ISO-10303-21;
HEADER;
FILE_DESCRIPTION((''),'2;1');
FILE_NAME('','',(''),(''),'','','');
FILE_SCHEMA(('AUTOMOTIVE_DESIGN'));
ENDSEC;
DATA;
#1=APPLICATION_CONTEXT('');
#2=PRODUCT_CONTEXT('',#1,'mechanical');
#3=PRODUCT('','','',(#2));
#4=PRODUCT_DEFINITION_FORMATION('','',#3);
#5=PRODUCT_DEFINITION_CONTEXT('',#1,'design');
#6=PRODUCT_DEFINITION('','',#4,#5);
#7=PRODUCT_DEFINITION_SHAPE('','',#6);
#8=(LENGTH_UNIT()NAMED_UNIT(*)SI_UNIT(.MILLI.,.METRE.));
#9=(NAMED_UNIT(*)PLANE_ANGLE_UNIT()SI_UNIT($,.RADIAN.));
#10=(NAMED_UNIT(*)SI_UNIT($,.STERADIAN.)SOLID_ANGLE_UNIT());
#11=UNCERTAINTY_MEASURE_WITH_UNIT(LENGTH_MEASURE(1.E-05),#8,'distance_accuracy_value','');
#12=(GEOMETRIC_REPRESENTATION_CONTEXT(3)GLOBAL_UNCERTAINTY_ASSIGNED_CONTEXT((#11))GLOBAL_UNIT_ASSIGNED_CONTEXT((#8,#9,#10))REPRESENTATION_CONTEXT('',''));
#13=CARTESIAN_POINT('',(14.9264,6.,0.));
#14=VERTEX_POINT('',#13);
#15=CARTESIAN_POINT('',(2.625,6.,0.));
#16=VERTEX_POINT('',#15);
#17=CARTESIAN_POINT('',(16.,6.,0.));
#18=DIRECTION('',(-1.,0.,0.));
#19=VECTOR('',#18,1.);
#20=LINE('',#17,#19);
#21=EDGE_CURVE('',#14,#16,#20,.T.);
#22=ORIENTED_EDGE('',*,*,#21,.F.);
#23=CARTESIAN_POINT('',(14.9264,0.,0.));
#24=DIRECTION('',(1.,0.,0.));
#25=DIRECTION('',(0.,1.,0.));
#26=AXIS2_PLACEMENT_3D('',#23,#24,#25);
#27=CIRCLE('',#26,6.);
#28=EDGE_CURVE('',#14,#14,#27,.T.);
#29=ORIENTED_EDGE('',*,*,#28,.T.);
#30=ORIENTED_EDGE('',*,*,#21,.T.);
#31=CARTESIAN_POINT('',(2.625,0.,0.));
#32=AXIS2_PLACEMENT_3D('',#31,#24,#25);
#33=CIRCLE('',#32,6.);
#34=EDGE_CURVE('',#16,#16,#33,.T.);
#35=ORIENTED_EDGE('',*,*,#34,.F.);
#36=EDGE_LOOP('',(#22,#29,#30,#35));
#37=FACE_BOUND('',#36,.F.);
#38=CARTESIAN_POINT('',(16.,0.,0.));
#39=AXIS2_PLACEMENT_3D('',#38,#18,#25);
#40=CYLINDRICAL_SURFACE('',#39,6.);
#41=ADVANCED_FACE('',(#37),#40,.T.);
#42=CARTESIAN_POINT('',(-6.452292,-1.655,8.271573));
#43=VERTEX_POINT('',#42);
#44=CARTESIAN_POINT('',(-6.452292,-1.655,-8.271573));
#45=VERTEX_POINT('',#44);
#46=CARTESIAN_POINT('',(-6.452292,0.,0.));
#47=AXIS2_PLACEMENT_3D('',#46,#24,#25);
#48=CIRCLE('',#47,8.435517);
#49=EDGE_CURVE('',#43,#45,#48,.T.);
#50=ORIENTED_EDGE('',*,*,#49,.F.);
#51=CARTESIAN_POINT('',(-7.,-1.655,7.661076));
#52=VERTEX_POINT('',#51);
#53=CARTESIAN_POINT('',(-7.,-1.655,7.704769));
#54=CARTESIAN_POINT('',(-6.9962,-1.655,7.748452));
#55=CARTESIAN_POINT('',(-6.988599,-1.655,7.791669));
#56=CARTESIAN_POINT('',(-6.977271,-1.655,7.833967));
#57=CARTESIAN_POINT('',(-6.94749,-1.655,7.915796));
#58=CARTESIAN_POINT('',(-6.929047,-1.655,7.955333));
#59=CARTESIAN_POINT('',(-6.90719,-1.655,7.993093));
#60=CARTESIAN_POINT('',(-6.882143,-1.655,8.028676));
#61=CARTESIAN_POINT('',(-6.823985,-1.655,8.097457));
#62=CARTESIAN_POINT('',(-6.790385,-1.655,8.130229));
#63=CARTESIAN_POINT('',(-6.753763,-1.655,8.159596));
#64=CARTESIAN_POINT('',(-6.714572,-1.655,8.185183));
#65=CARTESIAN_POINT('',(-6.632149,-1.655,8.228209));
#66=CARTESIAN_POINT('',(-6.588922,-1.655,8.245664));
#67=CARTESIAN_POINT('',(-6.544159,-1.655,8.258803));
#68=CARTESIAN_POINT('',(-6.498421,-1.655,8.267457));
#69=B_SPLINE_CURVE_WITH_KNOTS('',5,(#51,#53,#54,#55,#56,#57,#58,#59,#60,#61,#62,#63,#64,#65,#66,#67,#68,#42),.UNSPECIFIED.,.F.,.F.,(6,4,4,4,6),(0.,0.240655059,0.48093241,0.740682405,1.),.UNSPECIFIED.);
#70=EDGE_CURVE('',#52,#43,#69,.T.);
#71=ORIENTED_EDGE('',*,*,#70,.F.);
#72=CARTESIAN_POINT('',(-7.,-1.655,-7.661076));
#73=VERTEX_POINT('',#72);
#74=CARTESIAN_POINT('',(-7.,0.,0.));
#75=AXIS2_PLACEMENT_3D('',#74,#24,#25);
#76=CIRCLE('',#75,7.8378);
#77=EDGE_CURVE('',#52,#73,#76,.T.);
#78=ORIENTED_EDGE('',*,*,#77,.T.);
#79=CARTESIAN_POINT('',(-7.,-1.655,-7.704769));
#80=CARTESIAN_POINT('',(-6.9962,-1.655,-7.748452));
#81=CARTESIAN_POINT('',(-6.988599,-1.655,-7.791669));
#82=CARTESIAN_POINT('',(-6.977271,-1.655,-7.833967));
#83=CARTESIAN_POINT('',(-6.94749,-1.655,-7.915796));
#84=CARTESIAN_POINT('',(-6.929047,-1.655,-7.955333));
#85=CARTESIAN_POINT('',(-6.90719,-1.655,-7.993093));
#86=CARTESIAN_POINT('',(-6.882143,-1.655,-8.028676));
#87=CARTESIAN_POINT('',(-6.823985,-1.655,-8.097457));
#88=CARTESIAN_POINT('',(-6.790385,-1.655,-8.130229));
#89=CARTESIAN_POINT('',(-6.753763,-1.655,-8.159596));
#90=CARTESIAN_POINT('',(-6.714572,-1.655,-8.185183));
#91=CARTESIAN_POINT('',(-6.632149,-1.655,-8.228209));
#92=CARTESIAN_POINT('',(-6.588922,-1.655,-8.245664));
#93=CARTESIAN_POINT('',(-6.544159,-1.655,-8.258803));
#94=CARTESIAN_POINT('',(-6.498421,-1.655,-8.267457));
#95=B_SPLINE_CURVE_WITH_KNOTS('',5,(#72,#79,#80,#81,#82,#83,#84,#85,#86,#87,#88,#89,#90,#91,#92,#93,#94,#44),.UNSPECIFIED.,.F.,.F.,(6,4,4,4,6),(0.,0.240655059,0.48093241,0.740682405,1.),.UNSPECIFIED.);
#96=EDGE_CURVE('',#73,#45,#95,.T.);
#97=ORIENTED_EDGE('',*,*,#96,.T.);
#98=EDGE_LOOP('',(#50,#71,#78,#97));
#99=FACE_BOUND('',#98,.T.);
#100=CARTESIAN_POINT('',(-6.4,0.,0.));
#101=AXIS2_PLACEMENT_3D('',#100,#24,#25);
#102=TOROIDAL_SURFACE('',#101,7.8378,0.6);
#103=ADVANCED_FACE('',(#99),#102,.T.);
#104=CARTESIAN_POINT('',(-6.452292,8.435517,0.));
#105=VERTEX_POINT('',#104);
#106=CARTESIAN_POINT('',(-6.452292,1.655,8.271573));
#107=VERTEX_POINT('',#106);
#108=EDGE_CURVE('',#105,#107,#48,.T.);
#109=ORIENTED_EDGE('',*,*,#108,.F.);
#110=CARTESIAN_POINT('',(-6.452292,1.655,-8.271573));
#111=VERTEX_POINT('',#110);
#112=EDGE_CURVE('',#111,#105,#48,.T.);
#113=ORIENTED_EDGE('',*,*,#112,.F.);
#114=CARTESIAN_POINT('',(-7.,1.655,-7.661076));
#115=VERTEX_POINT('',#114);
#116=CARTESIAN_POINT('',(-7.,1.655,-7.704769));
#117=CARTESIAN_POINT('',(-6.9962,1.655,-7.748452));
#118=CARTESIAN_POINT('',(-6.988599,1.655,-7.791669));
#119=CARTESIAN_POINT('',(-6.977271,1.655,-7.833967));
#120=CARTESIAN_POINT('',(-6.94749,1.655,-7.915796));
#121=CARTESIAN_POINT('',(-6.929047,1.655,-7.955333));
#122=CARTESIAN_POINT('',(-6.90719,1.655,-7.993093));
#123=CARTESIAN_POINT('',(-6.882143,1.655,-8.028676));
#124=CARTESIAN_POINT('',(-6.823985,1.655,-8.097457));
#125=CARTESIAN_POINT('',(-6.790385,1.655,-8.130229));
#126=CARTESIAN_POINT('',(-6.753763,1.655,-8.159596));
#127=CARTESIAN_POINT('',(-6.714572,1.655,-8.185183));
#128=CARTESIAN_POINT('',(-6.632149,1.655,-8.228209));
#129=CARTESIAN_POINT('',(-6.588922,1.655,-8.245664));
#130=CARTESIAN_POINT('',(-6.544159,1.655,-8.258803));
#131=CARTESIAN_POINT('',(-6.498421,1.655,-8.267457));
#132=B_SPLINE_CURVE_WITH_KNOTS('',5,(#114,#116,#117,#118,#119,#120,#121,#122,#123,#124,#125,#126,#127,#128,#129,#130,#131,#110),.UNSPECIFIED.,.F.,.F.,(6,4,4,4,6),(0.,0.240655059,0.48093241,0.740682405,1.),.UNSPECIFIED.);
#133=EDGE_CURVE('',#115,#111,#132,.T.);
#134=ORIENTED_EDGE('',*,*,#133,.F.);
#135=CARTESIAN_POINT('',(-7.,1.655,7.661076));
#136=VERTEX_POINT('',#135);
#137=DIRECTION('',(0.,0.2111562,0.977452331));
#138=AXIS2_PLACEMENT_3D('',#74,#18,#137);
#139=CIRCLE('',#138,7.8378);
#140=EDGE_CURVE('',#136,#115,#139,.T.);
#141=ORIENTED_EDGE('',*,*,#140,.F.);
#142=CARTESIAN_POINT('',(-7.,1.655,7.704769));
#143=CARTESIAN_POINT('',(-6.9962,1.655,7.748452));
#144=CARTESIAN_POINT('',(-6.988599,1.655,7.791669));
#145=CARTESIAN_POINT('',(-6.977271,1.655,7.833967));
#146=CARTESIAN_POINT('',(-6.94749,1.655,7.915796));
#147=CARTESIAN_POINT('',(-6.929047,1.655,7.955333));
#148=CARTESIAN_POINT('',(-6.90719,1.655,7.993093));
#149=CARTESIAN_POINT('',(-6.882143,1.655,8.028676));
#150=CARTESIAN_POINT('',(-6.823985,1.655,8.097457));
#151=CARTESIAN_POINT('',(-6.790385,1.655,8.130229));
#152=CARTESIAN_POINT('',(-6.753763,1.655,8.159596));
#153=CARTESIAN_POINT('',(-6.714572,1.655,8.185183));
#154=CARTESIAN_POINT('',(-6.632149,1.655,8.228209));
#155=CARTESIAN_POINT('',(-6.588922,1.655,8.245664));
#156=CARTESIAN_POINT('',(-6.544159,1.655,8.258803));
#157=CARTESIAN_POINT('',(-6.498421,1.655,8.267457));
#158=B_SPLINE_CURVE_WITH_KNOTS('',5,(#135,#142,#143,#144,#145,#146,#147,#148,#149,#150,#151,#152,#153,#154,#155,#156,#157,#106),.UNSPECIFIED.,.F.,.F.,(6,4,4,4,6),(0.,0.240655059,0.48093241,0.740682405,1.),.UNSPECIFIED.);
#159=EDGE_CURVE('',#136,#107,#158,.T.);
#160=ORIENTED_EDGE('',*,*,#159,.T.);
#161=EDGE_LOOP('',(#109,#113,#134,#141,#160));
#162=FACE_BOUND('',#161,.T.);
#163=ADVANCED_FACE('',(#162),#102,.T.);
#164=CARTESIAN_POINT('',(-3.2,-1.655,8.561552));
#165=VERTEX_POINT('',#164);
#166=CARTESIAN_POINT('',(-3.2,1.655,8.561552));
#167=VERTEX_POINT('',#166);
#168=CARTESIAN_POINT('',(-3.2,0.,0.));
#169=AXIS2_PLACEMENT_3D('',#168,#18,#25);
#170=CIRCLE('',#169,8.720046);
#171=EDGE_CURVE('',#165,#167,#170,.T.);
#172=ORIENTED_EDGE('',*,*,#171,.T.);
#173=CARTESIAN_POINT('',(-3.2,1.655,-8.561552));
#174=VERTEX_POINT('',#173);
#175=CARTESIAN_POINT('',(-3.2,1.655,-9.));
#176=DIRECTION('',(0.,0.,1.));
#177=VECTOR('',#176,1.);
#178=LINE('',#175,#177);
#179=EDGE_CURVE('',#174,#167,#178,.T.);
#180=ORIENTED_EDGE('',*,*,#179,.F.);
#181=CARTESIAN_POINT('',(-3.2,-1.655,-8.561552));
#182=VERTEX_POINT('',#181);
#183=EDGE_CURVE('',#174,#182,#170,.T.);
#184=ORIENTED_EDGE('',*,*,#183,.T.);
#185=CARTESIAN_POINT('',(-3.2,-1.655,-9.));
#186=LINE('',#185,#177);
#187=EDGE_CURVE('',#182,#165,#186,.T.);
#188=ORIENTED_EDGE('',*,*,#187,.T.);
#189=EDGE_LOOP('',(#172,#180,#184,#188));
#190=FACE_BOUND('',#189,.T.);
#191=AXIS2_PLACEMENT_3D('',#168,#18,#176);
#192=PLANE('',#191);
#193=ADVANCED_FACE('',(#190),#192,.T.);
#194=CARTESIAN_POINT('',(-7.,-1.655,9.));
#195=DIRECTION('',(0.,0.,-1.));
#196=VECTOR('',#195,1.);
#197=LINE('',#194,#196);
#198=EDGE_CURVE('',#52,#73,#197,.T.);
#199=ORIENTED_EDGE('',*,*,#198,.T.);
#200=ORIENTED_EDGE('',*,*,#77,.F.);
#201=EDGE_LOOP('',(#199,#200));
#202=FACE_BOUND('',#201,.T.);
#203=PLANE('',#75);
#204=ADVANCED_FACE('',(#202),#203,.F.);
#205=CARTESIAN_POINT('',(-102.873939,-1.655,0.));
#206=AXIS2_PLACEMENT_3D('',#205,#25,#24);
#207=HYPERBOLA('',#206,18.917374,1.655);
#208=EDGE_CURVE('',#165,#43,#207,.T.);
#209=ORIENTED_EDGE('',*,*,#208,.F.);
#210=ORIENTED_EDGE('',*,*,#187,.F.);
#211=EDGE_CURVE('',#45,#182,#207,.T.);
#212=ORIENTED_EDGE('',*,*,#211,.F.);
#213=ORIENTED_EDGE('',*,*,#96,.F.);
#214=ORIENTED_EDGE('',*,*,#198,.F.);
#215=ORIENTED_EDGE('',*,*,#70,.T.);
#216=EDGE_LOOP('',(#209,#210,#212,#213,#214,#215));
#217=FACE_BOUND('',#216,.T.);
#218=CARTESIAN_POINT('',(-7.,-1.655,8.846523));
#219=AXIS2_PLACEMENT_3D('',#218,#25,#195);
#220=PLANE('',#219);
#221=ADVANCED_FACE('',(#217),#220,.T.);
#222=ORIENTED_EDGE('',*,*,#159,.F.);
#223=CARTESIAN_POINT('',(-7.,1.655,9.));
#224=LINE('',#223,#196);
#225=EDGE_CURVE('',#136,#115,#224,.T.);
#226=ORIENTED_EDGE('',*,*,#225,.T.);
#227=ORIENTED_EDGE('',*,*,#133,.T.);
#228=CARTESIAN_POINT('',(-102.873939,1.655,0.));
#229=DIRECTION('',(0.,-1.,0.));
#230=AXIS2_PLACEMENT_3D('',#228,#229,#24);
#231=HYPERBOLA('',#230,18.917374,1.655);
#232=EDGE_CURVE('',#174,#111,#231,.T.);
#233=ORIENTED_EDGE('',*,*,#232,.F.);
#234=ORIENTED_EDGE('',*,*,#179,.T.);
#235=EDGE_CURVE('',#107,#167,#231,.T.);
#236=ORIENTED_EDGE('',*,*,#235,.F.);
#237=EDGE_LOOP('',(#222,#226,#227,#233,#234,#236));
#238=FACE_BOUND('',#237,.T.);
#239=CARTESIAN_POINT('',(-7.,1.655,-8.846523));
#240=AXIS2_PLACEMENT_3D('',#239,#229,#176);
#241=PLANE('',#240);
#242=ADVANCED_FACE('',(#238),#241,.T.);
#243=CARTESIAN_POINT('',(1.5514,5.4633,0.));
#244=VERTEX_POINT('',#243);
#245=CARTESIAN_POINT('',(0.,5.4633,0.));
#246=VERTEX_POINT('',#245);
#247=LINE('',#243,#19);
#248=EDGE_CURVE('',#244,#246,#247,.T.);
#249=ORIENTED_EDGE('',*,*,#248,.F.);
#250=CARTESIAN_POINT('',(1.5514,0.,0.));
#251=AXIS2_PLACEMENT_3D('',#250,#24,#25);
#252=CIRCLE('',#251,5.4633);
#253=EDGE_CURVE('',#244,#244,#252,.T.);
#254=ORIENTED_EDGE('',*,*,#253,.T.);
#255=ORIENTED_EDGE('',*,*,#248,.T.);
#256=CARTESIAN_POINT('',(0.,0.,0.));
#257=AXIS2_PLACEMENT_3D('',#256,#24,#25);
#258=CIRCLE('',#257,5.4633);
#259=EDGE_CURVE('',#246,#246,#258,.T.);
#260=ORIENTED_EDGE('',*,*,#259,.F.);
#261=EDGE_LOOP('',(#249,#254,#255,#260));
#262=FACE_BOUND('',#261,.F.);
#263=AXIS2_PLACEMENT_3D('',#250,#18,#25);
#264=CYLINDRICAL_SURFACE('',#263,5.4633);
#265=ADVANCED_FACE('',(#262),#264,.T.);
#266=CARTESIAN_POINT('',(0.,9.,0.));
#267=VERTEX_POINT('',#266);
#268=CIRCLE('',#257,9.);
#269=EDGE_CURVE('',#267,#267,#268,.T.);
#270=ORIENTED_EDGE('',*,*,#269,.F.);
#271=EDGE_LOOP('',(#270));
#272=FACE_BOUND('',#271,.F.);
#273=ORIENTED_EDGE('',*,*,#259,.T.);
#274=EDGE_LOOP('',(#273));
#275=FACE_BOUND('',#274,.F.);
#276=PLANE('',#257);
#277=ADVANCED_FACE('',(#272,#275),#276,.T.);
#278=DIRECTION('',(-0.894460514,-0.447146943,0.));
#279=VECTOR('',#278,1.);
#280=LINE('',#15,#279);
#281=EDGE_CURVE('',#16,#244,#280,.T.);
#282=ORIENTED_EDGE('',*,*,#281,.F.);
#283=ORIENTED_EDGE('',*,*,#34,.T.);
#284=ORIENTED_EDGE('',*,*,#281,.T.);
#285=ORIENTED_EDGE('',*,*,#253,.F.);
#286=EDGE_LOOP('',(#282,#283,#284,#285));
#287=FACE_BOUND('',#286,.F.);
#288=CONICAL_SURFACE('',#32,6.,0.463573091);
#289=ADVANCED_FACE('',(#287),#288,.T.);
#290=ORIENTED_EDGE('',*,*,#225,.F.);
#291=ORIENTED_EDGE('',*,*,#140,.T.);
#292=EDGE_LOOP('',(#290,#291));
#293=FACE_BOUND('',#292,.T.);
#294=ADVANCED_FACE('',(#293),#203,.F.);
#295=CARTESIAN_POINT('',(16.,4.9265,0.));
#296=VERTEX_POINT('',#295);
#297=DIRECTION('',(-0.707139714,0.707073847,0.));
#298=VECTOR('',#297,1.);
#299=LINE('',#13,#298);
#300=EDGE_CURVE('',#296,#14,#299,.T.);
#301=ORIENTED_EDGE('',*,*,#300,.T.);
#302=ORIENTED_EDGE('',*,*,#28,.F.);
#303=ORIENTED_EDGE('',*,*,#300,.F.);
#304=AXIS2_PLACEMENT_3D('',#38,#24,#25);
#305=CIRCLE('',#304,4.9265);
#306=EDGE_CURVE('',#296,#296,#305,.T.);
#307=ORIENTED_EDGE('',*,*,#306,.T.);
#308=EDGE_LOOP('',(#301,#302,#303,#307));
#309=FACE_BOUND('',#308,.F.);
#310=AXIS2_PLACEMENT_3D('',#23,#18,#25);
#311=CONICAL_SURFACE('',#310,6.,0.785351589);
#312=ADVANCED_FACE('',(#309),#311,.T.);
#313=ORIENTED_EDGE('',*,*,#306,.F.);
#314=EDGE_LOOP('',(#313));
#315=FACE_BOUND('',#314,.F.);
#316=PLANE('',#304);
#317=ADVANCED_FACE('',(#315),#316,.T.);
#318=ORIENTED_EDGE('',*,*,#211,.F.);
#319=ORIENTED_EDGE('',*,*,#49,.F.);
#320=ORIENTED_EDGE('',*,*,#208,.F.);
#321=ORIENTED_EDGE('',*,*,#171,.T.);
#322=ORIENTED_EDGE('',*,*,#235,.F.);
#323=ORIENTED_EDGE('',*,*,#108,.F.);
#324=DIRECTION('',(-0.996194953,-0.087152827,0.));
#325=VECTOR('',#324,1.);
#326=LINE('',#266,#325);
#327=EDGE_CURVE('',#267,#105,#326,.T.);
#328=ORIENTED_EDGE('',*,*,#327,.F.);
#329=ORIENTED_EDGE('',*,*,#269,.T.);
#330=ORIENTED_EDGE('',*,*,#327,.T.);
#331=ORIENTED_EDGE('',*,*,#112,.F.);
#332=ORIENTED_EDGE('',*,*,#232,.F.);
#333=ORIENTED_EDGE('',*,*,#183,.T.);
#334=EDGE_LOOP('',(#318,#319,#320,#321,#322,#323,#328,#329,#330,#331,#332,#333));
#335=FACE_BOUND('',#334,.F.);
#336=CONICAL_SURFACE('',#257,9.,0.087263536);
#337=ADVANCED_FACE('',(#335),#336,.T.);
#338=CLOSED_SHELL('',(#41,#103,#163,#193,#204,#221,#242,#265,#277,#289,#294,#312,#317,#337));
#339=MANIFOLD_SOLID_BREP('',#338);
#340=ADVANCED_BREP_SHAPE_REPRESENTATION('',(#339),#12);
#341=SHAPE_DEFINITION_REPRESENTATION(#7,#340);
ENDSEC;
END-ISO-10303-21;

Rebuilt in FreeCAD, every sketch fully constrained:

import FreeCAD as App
import Part
import Sketcher
Q = App.Units.Quantity


def edges_at(feature, points):
    """Names of the edges that pass closest to the given points."""
    edges = feature.Shape.Edges
    near = lambda p: min(range(len(edges)), key=lambda i: edges[i].distToShape(Part.Vertex(*p))[0])
    return sorted({f"Edge{near(p) + 1}" for p in points})


def add_polygon(sketch, points):
    """Adds a closed chain of lines whose ends are joined by coincident constraints."""
    first, n = sketch.GeometryCount, len(points)
    for a, b in zip(points, points[1:] + points[:1]):
        sketch.addGeometry(Part.LineSegment(App.Vector(*a, 0), App.Vector(*b, 0)), False)
    for i in range(n):
        sketch.addConstraint(Sketcher.Constraint("Coincident", first + i, 2, first + (i + 1) % n, 1))

doc = App.newDocument("Part")
body = doc.addObject("PartDesign::Body", "Body")

# Sketch on XY plane
sketch1 = doc.addObject("Sketcher::SketchObject", "Sketch")
body.addObject(sketch1)
sketch1.AttachmentSupport = (doc.XY_Plane, [""])
sketch1.MapMode = "FlatFace"
add_polygon(sketch1, [(-7, 8.3876), (-7, 0), (16, 0), (16, 6), (2.625, 6), (1.5514, 5.4633), (0, 5.4633), (0, 9)])  # lines 0-7
sketch1.addConstraint([
    Sketcher.Constraint("Vertical", 0),
    Sketcher.Constraint("Horizontal", 1),
    Sketcher.Constraint("Vertical", 2),
    Sketcher.Constraint("Horizontal", 3),
    Sketcher.Constraint("Horizontal", 5),
    Sketcher.Constraint("Vertical", 6),
    Sketcher.Constraint("PointOnObject", 0, 2, -1),
    Sketcher.Constraint("PointOnObject", 5, 2, -2),
    Sketcher.Constraint("DistanceX", 0, 2, -1, 1, 7.0),
    Sketcher.Constraint("DistanceX", -1, 1, 1, 2, 16.0),
    Sketcher.Constraint("DistanceX", 3, 2, 3, 1, 13.375),
    Sketcher.Constraint("DistanceY", 2, 1, 2, 2, 6.0),
    Sketcher.Constraint("Angle", 7, Q("-175.0002 deg")),
    Sketcher.Constraint("DistanceY", -1, 1, 6, 2, 9.0),
    Sketcher.Constraint("Angle", 4, Q("-153.4392 deg")),
    Sketcher.Constraint("DistanceX", 4, 2, 3, 2, 1.0736),
])
revolution = doc.addObject("PartDesign::Revolution", "Revolution")
body.addObject(revolution)
revolution.Profile = sketch1
revolution.ReferenceAxis = (sketch1, ["H_Axis"])
revolution.Angle = 360
doc.recompute()

fillet = doc.addObject("PartDesign::Fillet", "Fillet")
body.addObject(fillet)
fillet.Base = (revolution, edges_at(revolution, [(-7, -8.388, 0)]))
fillet.Radius = 0.6

# Sketch on YZ plane
sketch2 = doc.addObject("Sketcher::SketchObject", "Sketch001")
body.addObject(sketch2)
sketch2.AttachmentSupport = (doc.YZ_Plane, [""])
sketch2.MapMode = "FlatFace"
sketch2.AttachmentOffset = App.Placement(App.Vector(0, 0, -7), App.Rotation())
add_polygon(sketch2, [(-1.655, 9), (1.655, 9), (1.655, -9), (-1.655, -9)])  # lines 0-3
sketch2.addConstraint([
    Sketcher.Constraint("Horizontal", 0),
    Sketcher.Constraint("Vertical", 1),
    Sketcher.Constraint("Horizontal", 2),
    Sketcher.Constraint("Vertical", 3),
    Sketcher.Constraint("Symmetric", 0, 2, 2, 2, -1, 1),
    Sketcher.Constraint("DistanceY", 1, 2, 1, 1, 18.0),
    Sketcher.Constraint("DistanceX", 0, 1, 0, 2, 3.31),
])
pocket1 = doc.addObject("PartDesign::Pocket", "Pocket")
body.addObject(pocket1)
pocket1.Profile = sketch2
pocket1.Length = 3.8
pocket1.Reversed = True
doc.recompute()

chamfer = doc.addObject("PartDesign::Chamfer", "Chamfer")
body.addObject(chamfer)
chamfer.Base = (pocket1, edges_at(pocket1, [(16, -6, 0)]))
chamfer.ChamferType = "Two distances"
chamfer.Size = 1.0735
chamfer.Size2 = 1.0736

doc.recompute()
